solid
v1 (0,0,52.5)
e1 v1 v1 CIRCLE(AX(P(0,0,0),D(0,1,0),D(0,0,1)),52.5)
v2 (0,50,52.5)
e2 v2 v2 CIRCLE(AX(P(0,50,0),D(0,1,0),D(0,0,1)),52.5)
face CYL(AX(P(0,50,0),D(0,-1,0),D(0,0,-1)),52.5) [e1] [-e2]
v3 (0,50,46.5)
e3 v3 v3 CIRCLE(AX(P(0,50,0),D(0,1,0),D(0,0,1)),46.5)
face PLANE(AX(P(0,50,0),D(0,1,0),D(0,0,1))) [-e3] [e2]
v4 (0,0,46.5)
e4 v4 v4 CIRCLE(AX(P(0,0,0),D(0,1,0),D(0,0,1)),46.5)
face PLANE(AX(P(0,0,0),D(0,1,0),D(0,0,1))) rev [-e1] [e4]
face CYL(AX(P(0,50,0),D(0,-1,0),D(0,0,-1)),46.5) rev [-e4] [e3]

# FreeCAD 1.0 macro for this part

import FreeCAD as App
import Part
import Sketcher
from FreeCAD import Vector
Q = App.Units.Quantity

doc = App.newDocument("Part")
body = doc.addObject("PartDesign::Body", "Body")

# Sketch on XZ plane
sketch1 = doc.addObject("Sketcher::SketchObject", "Sketch")
body.addObject(sketch1)
sketch1.AttachmentSupport = (doc.XZ_Plane, [""])
sketch1.MapMode = "FlatFace"
sketch1.addGeometry([
    Part.Circle(Vector(0, 0, 0), Vector(0, 0, 1), 52),
    Part.Circle(Vector(0, 0, 0), Vector(0, 0, 1), 46),
], False)
sketch1.addConstraint([
    Sketcher.Constraint("Coincident", 0, 3, -1, 1),
    Sketcher.Constraint("Coincident", 1, 3, -1, 1),
    Sketcher.Constraint("Diameter", 0, Q("105 mm")),
    Sketcher.Constraint("Diameter", 1, Q("93 mm")),
])
pad1 = doc.addObject("PartDesign::Pad", "Pad")
body.addObject(pad1)
pad1.Profile = sketch1
pad1.Length = 50
pad1.Reversed = True

doc.recompute()
